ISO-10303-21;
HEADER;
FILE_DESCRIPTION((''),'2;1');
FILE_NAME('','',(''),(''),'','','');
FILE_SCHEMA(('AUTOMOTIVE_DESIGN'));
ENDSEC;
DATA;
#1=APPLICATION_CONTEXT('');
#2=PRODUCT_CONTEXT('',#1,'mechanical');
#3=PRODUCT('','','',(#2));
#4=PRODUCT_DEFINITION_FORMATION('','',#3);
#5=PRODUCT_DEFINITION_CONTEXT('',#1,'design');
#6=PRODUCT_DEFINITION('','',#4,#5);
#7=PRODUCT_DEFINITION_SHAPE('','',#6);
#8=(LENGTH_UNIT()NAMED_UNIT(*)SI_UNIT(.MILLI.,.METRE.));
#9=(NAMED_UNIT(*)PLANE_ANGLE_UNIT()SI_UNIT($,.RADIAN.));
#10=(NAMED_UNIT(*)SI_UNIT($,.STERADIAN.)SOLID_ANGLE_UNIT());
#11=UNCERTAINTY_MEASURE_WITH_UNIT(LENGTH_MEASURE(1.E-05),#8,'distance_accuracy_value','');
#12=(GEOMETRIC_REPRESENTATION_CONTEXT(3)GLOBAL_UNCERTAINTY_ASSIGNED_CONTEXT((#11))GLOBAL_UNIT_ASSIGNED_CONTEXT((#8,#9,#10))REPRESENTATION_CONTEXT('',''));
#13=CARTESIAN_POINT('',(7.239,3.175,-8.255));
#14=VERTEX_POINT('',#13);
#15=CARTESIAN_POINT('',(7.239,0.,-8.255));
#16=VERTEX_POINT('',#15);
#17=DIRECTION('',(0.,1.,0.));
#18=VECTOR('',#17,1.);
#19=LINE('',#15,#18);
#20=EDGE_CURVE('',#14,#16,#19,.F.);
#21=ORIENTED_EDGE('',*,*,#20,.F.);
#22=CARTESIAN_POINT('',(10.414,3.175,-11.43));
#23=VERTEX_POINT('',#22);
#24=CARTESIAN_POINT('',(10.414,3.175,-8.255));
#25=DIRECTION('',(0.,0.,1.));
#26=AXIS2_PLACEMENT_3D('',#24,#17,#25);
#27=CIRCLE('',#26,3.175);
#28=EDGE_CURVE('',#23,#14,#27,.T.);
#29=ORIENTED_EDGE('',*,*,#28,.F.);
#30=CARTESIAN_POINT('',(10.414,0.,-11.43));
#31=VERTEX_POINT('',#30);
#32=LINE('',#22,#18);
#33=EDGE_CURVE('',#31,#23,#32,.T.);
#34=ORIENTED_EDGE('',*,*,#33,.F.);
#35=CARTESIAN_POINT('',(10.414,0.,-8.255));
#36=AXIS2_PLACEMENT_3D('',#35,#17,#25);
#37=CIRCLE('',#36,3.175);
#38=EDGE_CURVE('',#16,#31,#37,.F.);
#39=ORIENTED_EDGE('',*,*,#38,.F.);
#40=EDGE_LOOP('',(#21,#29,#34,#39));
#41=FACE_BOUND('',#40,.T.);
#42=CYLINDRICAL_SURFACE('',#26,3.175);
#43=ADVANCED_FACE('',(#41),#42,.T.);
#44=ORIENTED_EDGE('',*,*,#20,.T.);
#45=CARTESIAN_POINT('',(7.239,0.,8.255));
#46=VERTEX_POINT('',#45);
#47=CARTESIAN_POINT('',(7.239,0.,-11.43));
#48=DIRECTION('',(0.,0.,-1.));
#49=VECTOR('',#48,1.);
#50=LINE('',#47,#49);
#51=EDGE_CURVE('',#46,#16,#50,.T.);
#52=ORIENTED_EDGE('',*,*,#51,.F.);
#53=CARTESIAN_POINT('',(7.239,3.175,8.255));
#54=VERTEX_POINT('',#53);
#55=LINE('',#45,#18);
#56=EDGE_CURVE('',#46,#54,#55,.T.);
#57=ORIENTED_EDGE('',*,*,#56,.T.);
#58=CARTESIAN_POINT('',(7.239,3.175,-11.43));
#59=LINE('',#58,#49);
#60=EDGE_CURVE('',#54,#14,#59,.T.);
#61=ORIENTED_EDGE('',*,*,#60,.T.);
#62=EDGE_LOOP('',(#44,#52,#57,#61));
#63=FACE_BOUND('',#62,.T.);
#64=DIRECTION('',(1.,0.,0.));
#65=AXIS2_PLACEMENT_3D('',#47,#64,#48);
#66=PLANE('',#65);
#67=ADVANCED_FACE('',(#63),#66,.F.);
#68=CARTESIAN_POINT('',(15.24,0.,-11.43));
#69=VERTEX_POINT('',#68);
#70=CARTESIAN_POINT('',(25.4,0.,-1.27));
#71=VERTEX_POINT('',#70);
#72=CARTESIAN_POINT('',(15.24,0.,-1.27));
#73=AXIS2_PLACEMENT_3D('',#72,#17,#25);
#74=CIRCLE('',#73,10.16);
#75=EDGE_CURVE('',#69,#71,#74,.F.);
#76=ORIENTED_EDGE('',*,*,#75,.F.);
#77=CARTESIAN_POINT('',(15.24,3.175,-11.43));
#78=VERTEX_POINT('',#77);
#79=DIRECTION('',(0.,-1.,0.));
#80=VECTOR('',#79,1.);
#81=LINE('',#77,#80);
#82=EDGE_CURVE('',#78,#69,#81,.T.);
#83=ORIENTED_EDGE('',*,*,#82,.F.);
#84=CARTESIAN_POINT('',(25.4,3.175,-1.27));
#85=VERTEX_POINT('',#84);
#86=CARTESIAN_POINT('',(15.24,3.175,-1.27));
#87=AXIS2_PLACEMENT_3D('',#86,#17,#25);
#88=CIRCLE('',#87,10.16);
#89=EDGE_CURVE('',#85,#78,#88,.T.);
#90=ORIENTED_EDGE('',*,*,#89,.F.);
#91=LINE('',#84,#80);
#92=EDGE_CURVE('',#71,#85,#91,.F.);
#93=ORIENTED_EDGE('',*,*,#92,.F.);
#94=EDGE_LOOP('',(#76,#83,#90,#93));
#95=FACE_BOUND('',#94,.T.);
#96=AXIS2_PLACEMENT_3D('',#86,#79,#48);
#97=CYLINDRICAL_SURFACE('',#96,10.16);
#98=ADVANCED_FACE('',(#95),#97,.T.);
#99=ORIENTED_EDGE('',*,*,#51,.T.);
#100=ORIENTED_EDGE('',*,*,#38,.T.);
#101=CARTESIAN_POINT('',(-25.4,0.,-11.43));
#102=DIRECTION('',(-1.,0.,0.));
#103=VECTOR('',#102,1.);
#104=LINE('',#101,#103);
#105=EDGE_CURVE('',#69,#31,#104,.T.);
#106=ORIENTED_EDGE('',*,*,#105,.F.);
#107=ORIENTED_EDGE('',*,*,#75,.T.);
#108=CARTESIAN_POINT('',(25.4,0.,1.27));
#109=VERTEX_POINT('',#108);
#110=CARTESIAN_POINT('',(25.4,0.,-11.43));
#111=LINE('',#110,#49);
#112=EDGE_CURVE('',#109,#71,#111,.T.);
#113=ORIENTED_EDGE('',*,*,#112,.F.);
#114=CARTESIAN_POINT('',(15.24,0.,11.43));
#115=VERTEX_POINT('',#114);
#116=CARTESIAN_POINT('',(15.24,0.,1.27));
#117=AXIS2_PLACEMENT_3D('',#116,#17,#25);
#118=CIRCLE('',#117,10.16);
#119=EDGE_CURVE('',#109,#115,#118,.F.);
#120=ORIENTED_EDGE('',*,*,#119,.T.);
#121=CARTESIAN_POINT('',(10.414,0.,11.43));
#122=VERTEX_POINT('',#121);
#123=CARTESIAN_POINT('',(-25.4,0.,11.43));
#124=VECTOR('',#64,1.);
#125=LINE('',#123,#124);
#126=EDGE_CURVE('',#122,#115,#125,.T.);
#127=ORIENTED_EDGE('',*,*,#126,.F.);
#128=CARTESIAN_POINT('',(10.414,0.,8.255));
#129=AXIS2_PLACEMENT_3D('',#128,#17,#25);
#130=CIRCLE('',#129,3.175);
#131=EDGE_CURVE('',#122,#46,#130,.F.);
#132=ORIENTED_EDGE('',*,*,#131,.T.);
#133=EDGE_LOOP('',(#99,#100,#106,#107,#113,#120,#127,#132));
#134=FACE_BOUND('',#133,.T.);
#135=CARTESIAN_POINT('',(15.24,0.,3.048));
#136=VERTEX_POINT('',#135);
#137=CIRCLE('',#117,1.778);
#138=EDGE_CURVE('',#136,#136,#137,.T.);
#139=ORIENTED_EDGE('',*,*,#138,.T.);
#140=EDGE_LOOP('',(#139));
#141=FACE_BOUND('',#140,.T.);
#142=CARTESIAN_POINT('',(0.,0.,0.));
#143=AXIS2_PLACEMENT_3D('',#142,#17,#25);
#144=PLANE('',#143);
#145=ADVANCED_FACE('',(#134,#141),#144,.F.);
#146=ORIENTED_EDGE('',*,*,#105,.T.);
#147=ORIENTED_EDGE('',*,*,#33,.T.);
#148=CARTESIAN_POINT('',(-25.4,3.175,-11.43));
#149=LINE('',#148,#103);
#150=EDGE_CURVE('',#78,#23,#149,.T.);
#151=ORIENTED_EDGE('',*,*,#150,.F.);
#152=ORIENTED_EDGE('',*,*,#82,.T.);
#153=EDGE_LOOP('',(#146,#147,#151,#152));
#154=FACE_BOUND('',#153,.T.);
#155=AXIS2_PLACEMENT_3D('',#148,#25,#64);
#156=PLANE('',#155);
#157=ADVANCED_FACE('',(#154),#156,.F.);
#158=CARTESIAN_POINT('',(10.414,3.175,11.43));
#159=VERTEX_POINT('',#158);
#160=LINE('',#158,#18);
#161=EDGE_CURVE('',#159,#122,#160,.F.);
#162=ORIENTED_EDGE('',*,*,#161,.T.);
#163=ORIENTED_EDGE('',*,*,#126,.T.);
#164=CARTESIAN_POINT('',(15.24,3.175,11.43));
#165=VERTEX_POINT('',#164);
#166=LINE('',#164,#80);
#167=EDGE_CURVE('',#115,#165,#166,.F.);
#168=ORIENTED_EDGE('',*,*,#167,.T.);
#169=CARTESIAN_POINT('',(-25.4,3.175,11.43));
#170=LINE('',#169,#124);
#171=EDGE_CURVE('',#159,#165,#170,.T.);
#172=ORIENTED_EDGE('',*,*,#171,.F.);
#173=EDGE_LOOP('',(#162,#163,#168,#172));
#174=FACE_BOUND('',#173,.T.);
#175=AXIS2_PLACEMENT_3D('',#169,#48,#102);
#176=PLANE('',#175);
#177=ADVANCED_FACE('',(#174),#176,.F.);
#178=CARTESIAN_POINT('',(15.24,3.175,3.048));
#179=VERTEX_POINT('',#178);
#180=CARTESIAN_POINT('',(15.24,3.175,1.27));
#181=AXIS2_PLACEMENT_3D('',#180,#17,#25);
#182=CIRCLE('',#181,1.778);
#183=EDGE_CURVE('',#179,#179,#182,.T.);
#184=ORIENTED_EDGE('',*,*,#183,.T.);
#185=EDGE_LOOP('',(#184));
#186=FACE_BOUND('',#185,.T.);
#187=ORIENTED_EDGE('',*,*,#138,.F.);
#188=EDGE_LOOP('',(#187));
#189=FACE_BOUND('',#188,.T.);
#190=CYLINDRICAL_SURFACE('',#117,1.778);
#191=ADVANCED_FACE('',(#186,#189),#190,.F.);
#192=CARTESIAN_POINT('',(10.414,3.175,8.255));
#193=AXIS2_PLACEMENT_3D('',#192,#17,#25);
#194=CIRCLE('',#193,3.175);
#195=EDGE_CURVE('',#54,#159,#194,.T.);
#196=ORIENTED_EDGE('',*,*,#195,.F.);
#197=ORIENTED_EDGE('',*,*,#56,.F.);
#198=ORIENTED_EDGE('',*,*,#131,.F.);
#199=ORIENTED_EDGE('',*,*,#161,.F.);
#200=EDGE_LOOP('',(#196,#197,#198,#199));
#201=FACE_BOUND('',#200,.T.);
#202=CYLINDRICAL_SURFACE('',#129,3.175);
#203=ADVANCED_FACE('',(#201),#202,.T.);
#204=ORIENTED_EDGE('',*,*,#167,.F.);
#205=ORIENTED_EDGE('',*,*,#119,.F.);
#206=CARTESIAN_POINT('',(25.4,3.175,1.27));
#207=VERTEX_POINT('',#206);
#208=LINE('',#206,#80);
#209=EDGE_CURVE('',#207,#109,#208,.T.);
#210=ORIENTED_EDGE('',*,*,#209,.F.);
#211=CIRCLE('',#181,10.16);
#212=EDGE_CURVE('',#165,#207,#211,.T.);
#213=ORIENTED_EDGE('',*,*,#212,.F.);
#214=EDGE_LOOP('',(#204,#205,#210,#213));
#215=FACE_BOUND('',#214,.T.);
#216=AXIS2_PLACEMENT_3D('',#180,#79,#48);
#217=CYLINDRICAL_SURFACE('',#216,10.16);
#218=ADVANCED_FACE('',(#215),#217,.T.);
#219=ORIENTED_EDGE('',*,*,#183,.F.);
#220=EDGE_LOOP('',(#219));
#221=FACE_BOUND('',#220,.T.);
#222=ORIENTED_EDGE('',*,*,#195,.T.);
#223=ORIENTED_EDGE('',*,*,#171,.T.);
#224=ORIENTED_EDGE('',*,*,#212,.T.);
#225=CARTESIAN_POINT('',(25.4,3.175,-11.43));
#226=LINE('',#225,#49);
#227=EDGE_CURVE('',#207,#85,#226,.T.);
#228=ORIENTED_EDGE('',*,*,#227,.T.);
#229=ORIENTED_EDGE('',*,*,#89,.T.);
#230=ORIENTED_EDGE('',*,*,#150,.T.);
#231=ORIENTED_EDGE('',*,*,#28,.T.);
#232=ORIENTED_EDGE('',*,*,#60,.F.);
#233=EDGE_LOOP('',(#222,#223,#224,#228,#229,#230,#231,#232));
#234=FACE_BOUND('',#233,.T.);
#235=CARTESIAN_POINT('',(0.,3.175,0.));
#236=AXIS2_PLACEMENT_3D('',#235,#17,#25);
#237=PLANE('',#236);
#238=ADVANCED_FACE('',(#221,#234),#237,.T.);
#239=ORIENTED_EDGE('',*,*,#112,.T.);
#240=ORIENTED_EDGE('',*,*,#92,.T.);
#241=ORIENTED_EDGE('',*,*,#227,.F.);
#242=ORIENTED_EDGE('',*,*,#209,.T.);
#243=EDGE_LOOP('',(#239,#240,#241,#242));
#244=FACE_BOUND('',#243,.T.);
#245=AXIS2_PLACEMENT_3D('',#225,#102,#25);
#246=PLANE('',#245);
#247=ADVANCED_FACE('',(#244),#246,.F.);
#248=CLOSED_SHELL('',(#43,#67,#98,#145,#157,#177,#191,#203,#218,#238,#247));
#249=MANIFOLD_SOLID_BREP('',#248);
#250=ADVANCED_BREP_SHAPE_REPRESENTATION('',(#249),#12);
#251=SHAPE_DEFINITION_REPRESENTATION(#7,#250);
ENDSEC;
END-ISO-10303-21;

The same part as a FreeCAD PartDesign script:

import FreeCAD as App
import Part
import Sketcher
from FreeCAD import Vector
Q = App.Units.Quantity


def edges_at(feature, points):
    """Names of the edges that pass closest to the given points."""
    edges = feature.Shape.Edges
    near = lambda p: min(range(len(edges)), key=lambda i: edges[i].distToShape(Part.Vertex(*p))[0])
    return sorted({f"Edge{near(p) + 1}" for p in points})


def add_polygon(sketch, points):
    """Adds a closed chain of lines whose ends are joined by coincident constraints."""
    first, n = sketch.GeometryCount, len(points)
    for a, b in zip(points, points[1:] + points[:1]):
        sketch.addGeometry(Part.LineSegment(App.Vector(*a, 0), App.Vector(*b, 0)), False)
    for i in range(n):
        sketch.addConstraint(Sketcher.Constraint("Coincident", first + i, 2, first + (i + 1) % n, 1))

doc = App.newDocument("Part")
params = doc.addObject("Spreadsheet::Sheet", "Params")
for row, (alias, value) in enumerate([
    ("sketch1_width", "2 in"),
    ("sketch1_height", "0.9 in"),
    ("pad1_length", "0.125 in"),
    ("fillet_radius", "0.4 in"),
    ("sketch2_diameter", "0.14 in"),
    ("fillet2_radius", "0.4 in"),
    ("sketch3_height", "0.9 in"),
    ("sketch3_width", "1.285 in"),
    ("fillet3_radius", "0.125 in"),
], start=1):
    params.set(f"A{row}", alias)
    params.set(f"B{row}", "=" + value)
    params.setAlias(f"B{row}", alias)

body = doc.addObject("PartDesign::Body", "Body")

# Sketch on XZ plane
sketch1 = doc.addObject("Sketcher::SketchObject", "Sketch")
body.addObject(sketch1)
sketch1.AttachmentSupport = (doc.XZ_Plane, [""])
sketch1.MapMode = "FlatFace"
add_polygon(sketch1, [(-25.4, -11.43), (-25.4, 11.43), (25.4, 11.43), (25.4, -11.43)])  # lines 0-3
sketch1.addConstraint(Sketcher.Constraint("Vertical", 0))
sketch1.addConstraint(Sketcher.Constraint("Horizontal", 1))
sketch1.addConstraint(Sketcher.Constraint("Vertical", 2))
sketch1.addConstraint(Sketcher.Constraint("Horizontal", 3))
sketch1.addConstraint(Sketcher.Constraint("Symmetric", 0, 2, 2, 2, -1, 1))
sketch1.addConstraint(Sketcher.Constraint("DistanceX", 1, 1, 1, 2, Q("2 in")))
sketch1.addConstraint(Sketcher.Constraint("DistanceY", 0, 1, 0, 2, Q("0.9 in")))
sketch1.setExpression("Constraints[9]", "Params.sketch1_width")
sketch1.setExpression("Constraints[10]", "Params.sketch1_height")
pad1 = doc.addObject("PartDesign::Pad", "Pad")
body.addObject(pad1)
pad1.Profile = sketch1
pad1.setExpression("Length", "Params.pad1_length")
pad1.Reversed = True
doc.recompute()

fillet = doc.addObject("PartDesign::Fillet", "Fillet")
body.addObject(fillet)
fillet.Base = (pad1, edges_at(pad1, [(25.4, 1.587, 11.43), (-25.4, 1.587, 11.43)]))
fillet.setExpression("Radius", "Params.fillet_radius")

# Sketch on XZ plane
sketch2 = doc.addObject("Sketcher::SketchObject", "Sketch001")
body.addObject(sketch2)
sketch2.AttachmentSupport = (doc.XZ_Plane, [""])
sketch2.MapMode = "FlatFace"
sketch2.AttachmentOffset = App.Placement(Vector(0, 0, -0.125 * 25.4), App.Rotation())
sketch2.addGeometry(Part.Circle(Vector(15.24, 1.27, 0), Vector(0, 0, 1), 1.778), False)
sketch2.addGeometry(Part.Circle(Vector(-3.81, 1.27, 0), Vector(0, 0, 1), 1.778), False)
sketch2.addConstraint(Sketcher.Constraint("Equal", 0, 1))
sketch2.addConstraint(Sketcher.Constraint("Horizontal", 0, 3, 1, 3))
sketch2.addConstraint(Sketcher.Constraint("Diameter", 0, Q("0.14 in")))
sketch2.addConstraint(Sketcher.Constraint("DistanceX", -1, 1, 0, 3, Q("0.6 in")))
sketch2.addConstraint(Sketcher.Constraint("DistanceY", -1, 1, 0, 3, Q("0.05 in")))
sketch2.addConstraint(Sketcher.Constraint("DistanceX", 1, 3, -1, 1, Q("0.15 in")))
sketch2.setExpression("Constraints[2]", "Params.sketch2_diameter")
pocket1 = doc.addObject("PartDesign::Pocket", "Pocket")
body.addObject(pocket1)
pocket1.Profile = sketch2
pocket1.Type = "ThroughAll"
pocket1.Reversed = True
doc.recompute()

fillet2 = doc.addObject("PartDesign::Fillet", "Fillet001")
body.addObject(fillet2)
fillet2.Base = (pocket1, edges_at(pocket1, [(-25.4, 1.587, -11.43), (25.4, 1.587, -11.43)]))
fillet2.setExpression("Radius", "Params.fillet2_radius")

# Sketch on XZ plane
sketch3 = doc.addObject("Sketcher::SketchObject", "Sketch002")
body.addObject(sketch3)
sketch3.AttachmentSupport = (doc.XZ_Plane, [""])
sketch3.MapMode = "FlatFace"
sketch3.AttachmentOffset = App.Placement(Vector(0, 0, -0.125 * 25.4), App.Rotation())
add_polygon(sketch3, [(-25.4, -11.43), (-25.4, 11.43), (7.239, 11.43), (7.239, -11.43)])  # lines 0-3
sketch3.addConstraint(Sketcher.Constraint("Vertical", 0))
sketch3.addConstraint(Sketcher.Constraint("Horizontal", 1))
sketch3.addConstraint(Sketcher.Constraint("Vertical", 2))
sketch3.addConstraint(Sketcher.Constraint("Horizontal", 3))
sketch3.addConstraint(Sketcher.Constraint("DistanceY", 0, 1, 0, 2, Q("0.9 in")))
sketch3.addConstraint(Sketcher.Constraint("DistanceX", 0, 2, -1, 1, Q("1 in")))
sketch3.addConstraint(Sketcher.Constraint("DistanceX", 1, 1, 1, 2, Q("1.285 in")))
sketch3.addConstraint(Sketcher.Constraint("DistanceY", -1, 1, 0, 2, Q("0.45 in")))
sketch3.setExpression("Constraints[8]", "Params.sketch3_height")
sketch3.setExpression("Constraints[10]", "Params.sketch3_width")
pocket2 = doc.addObject("PartDesign::Pocket", "Pocket001")
body.addObject(pocket2)
pocket2.Profile = sketch3
pocket2.Type = "ThroughAll"
pocket2.Reversed = True
doc.recompute()

fillet3 = doc.addObject("PartDesign::Fillet", "Fillet002")
body.addObject(fillet3)
fillet3.Base = (pocket2, edges_at(pocket2, [(7.239, 1.587, -11.43), (7.239, 1.587, 11.43)]))
fillet3.setExpression("Radius", "Params.fillet3_radius")

doc.recompute()
